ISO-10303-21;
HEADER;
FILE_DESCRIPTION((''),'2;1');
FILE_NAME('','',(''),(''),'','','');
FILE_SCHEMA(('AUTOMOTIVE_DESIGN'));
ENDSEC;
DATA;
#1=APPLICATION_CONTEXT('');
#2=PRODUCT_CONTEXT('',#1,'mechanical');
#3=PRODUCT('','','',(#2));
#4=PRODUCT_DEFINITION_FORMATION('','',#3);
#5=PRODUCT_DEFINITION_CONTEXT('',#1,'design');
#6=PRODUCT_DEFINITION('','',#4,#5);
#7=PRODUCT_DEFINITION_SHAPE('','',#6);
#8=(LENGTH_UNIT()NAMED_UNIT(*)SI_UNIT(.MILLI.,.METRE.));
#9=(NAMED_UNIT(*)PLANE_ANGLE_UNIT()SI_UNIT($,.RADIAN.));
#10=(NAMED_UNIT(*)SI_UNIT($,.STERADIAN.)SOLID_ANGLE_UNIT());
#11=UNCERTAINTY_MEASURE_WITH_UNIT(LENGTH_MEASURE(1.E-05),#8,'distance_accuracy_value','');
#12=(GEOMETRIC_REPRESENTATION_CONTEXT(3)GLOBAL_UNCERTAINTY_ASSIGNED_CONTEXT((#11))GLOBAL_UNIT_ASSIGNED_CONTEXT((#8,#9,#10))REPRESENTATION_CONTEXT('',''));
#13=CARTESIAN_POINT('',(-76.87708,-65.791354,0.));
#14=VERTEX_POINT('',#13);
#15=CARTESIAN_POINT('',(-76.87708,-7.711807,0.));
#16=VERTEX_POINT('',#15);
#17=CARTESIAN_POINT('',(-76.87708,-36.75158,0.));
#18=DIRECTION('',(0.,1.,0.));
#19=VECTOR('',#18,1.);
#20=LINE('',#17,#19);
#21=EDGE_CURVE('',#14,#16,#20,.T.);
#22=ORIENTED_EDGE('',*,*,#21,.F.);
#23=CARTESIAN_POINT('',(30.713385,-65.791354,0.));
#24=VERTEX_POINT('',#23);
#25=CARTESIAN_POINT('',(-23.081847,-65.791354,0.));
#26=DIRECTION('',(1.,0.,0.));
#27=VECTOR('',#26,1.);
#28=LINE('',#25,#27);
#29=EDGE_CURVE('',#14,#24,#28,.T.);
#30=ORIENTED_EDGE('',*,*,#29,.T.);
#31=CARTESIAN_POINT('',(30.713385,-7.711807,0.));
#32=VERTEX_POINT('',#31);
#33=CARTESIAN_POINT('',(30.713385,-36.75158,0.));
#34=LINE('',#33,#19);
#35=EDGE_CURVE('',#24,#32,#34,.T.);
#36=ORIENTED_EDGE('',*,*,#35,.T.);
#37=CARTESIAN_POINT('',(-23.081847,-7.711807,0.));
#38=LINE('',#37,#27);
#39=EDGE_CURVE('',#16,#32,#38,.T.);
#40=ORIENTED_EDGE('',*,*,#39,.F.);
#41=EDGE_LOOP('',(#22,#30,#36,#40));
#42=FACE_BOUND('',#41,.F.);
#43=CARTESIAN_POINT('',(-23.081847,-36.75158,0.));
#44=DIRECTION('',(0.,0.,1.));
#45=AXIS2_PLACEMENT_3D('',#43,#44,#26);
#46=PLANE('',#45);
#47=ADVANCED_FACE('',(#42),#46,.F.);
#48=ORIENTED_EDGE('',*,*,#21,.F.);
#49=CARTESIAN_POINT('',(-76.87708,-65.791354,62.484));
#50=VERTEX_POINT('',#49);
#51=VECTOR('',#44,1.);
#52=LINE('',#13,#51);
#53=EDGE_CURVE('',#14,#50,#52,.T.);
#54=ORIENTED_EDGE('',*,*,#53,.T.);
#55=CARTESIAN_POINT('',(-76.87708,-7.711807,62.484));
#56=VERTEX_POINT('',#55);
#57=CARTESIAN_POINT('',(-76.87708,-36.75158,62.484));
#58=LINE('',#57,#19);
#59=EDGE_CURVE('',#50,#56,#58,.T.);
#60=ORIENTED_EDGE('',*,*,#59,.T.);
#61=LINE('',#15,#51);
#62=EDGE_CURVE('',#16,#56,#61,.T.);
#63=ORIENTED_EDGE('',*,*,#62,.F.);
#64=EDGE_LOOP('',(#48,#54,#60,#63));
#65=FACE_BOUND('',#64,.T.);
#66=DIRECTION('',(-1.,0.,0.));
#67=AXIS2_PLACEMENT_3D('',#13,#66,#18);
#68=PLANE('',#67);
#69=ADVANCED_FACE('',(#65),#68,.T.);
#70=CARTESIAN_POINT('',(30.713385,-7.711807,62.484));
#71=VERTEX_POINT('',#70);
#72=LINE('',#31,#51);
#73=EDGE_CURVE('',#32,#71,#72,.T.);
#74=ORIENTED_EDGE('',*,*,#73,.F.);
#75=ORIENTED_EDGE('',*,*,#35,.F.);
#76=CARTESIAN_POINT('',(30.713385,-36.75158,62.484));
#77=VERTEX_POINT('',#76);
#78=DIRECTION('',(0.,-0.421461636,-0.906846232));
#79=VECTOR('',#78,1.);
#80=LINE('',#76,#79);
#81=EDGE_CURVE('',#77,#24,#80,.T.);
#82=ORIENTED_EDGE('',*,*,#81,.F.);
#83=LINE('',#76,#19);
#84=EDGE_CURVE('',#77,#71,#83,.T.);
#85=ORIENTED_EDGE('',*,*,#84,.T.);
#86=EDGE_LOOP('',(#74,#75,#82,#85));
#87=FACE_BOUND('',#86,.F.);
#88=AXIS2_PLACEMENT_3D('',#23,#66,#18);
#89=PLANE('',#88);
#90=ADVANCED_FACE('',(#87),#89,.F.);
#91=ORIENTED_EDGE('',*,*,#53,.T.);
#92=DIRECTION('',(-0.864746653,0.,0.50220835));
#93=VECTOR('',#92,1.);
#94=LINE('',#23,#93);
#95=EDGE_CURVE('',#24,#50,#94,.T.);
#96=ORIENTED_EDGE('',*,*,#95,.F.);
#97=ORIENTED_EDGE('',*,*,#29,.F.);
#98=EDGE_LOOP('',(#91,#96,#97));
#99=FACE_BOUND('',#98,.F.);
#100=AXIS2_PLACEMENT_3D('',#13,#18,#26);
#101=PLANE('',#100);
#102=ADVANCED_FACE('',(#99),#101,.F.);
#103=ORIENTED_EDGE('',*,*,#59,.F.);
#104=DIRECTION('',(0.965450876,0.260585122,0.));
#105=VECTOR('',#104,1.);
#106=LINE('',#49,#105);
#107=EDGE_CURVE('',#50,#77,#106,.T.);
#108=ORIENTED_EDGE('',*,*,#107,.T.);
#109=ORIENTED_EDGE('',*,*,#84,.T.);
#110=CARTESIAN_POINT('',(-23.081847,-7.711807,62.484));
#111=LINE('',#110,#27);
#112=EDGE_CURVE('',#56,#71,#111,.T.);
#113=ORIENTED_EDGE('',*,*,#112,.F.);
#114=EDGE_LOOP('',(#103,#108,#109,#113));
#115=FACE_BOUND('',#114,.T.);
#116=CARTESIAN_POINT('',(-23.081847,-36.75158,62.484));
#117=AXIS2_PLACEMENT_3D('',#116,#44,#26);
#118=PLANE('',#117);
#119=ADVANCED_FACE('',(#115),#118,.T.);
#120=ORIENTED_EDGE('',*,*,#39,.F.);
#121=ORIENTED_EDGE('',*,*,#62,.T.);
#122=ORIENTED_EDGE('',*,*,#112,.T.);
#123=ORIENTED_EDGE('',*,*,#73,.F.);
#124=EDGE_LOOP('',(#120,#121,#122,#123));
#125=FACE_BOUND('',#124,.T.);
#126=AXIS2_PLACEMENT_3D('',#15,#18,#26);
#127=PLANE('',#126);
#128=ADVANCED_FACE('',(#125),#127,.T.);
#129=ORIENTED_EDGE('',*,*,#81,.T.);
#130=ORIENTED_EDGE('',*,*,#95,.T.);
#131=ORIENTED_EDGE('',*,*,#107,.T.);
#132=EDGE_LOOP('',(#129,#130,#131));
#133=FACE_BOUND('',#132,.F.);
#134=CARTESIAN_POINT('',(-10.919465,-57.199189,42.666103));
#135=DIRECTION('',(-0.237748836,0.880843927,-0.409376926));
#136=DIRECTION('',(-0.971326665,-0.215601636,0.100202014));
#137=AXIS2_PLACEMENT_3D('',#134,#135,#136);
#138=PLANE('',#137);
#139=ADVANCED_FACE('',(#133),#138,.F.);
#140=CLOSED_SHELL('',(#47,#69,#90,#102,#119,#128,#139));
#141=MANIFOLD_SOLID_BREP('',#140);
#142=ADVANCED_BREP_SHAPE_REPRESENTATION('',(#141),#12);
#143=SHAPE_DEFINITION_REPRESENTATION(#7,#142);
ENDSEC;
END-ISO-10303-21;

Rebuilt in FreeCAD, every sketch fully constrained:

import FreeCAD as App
import Part
import Sketcher

V = App.Vector
Q = App.Units.Quantity

doc = App.newDocument("Part")
body = doc.addObject("PartDesign::Body", "Body")

# Sketch on XY plane
sketch1 = doc.addObject("Sketcher::SketchObject", "Sketch")
body.addObject(sketch1)
sketch1.AttachmentSupport = (doc.XY_Plane, [""])
sketch1.MapMode = "FlatFace"
sketch1.addGeometry([
    Part.LineSegment(V(-77, -8, 0), V(-77, -66, 0)),
    Part.LineSegment(V(-77, -66, 0), V(31, -66, 0)),
    Part.LineSegment(V(31, -66, 0), V(31, -8, 0)),
    Part.LineSegment(V(31, -8, 0), V(-77, -8, 0)),
], False)
sketch1.addConstraint([
    Sketcher.Constraint("Coincident", 0, 2, 1, 1),
    Sketcher.Constraint("Coincident", 1, 2, 2, 1),
    Sketcher.Constraint("Coincident", 2, 2, 3, 1),
    Sketcher.Constraint("Coincident", 3, 2, 0, 1),
    Sketcher.Constraint("Vertical", 0),
    Sketcher.Constraint("Horizontal", 1),
    Sketcher.Constraint("Vertical", 2),
    Sketcher.Constraint("Horizontal", 3),
    Sketcher.Constraint("DistanceX", 1, 1, 1, 2, Q("107.590465 mm")),
    Sketcher.Constraint("DistanceY", 0, 2, 0, 1, Q("58.079546 mm")),
    Sketcher.Constraint("DistanceX", 0, 2, -1, 1, Q("76.87708 mm")),
    Sketcher.Constraint("DistanceY", 0, 2, -1, 1, Q("65.791354 mm")),
])
pad1 = doc.addObject("PartDesign::Pad", "Pad")
body.addObject(pad1)
pad1.Profile = sketch1
pad1.Length = Q("2.46 in")

# Sketch on an angled plane
sketch2 = doc.addObject("Sketcher::SketchObject", "Sketch001")
body.addObject(sketch2)
sketch2.Placement = App.Placement(V(15.514059, -57.478577, 26.713476), App.Rotation(V(-0.971326665, -0.215601636, 0.100202014), V(0.000000001, 0.421461636, 0.906846232), V(-0.237748836, 0.880843927, -0.409376926), "ZXY"))
sketch2.addGeometry([
    Part.LineSegment(V(-16, -28, 0), V(95, 29, 0)),
    Part.LineSegment(V(95, 29, 0), V(-16, 41, 0)),
    Part.LineSegment(V(-16, 41, 0), V(-16, -28, 0)),
], False)
sketch2.addConstraint([
    Sketcher.Constraint("Coincident", 0, 2, 1, 1),
    Sketcher.Constraint("Coincident", 1, 2, 2, 1),
    Sketcher.Constraint("Coincident", 2, 2, 0, 1),
    Sketcher.Constraint("Vertical", 2),
    Sketcher.Constraint("DistanceY", 2, 2, 2, 1, Q("68.90253 mm")),
    Sketcher.Constraint("DistanceY", -1, 1, 1, 2, Q("41.173999 mm")),
    Sketcher.Constraint("Distance", 0, Q("124.418481 mm")),
    Sketcher.Constraint("Distance", 1, Q("111.440641 mm")),
    Sketcher.Constraint("DistanceX", -1, 1, 0, 2, Q("95.118504 mm")),
])
pocket1 = doc.addObject("PartDesign::Pocket", "Pocket")
body.addObject(pocket1)
pocket1.Profile = sketch2
pocket1.Type = "ThroughAll"

doc.recompute()
